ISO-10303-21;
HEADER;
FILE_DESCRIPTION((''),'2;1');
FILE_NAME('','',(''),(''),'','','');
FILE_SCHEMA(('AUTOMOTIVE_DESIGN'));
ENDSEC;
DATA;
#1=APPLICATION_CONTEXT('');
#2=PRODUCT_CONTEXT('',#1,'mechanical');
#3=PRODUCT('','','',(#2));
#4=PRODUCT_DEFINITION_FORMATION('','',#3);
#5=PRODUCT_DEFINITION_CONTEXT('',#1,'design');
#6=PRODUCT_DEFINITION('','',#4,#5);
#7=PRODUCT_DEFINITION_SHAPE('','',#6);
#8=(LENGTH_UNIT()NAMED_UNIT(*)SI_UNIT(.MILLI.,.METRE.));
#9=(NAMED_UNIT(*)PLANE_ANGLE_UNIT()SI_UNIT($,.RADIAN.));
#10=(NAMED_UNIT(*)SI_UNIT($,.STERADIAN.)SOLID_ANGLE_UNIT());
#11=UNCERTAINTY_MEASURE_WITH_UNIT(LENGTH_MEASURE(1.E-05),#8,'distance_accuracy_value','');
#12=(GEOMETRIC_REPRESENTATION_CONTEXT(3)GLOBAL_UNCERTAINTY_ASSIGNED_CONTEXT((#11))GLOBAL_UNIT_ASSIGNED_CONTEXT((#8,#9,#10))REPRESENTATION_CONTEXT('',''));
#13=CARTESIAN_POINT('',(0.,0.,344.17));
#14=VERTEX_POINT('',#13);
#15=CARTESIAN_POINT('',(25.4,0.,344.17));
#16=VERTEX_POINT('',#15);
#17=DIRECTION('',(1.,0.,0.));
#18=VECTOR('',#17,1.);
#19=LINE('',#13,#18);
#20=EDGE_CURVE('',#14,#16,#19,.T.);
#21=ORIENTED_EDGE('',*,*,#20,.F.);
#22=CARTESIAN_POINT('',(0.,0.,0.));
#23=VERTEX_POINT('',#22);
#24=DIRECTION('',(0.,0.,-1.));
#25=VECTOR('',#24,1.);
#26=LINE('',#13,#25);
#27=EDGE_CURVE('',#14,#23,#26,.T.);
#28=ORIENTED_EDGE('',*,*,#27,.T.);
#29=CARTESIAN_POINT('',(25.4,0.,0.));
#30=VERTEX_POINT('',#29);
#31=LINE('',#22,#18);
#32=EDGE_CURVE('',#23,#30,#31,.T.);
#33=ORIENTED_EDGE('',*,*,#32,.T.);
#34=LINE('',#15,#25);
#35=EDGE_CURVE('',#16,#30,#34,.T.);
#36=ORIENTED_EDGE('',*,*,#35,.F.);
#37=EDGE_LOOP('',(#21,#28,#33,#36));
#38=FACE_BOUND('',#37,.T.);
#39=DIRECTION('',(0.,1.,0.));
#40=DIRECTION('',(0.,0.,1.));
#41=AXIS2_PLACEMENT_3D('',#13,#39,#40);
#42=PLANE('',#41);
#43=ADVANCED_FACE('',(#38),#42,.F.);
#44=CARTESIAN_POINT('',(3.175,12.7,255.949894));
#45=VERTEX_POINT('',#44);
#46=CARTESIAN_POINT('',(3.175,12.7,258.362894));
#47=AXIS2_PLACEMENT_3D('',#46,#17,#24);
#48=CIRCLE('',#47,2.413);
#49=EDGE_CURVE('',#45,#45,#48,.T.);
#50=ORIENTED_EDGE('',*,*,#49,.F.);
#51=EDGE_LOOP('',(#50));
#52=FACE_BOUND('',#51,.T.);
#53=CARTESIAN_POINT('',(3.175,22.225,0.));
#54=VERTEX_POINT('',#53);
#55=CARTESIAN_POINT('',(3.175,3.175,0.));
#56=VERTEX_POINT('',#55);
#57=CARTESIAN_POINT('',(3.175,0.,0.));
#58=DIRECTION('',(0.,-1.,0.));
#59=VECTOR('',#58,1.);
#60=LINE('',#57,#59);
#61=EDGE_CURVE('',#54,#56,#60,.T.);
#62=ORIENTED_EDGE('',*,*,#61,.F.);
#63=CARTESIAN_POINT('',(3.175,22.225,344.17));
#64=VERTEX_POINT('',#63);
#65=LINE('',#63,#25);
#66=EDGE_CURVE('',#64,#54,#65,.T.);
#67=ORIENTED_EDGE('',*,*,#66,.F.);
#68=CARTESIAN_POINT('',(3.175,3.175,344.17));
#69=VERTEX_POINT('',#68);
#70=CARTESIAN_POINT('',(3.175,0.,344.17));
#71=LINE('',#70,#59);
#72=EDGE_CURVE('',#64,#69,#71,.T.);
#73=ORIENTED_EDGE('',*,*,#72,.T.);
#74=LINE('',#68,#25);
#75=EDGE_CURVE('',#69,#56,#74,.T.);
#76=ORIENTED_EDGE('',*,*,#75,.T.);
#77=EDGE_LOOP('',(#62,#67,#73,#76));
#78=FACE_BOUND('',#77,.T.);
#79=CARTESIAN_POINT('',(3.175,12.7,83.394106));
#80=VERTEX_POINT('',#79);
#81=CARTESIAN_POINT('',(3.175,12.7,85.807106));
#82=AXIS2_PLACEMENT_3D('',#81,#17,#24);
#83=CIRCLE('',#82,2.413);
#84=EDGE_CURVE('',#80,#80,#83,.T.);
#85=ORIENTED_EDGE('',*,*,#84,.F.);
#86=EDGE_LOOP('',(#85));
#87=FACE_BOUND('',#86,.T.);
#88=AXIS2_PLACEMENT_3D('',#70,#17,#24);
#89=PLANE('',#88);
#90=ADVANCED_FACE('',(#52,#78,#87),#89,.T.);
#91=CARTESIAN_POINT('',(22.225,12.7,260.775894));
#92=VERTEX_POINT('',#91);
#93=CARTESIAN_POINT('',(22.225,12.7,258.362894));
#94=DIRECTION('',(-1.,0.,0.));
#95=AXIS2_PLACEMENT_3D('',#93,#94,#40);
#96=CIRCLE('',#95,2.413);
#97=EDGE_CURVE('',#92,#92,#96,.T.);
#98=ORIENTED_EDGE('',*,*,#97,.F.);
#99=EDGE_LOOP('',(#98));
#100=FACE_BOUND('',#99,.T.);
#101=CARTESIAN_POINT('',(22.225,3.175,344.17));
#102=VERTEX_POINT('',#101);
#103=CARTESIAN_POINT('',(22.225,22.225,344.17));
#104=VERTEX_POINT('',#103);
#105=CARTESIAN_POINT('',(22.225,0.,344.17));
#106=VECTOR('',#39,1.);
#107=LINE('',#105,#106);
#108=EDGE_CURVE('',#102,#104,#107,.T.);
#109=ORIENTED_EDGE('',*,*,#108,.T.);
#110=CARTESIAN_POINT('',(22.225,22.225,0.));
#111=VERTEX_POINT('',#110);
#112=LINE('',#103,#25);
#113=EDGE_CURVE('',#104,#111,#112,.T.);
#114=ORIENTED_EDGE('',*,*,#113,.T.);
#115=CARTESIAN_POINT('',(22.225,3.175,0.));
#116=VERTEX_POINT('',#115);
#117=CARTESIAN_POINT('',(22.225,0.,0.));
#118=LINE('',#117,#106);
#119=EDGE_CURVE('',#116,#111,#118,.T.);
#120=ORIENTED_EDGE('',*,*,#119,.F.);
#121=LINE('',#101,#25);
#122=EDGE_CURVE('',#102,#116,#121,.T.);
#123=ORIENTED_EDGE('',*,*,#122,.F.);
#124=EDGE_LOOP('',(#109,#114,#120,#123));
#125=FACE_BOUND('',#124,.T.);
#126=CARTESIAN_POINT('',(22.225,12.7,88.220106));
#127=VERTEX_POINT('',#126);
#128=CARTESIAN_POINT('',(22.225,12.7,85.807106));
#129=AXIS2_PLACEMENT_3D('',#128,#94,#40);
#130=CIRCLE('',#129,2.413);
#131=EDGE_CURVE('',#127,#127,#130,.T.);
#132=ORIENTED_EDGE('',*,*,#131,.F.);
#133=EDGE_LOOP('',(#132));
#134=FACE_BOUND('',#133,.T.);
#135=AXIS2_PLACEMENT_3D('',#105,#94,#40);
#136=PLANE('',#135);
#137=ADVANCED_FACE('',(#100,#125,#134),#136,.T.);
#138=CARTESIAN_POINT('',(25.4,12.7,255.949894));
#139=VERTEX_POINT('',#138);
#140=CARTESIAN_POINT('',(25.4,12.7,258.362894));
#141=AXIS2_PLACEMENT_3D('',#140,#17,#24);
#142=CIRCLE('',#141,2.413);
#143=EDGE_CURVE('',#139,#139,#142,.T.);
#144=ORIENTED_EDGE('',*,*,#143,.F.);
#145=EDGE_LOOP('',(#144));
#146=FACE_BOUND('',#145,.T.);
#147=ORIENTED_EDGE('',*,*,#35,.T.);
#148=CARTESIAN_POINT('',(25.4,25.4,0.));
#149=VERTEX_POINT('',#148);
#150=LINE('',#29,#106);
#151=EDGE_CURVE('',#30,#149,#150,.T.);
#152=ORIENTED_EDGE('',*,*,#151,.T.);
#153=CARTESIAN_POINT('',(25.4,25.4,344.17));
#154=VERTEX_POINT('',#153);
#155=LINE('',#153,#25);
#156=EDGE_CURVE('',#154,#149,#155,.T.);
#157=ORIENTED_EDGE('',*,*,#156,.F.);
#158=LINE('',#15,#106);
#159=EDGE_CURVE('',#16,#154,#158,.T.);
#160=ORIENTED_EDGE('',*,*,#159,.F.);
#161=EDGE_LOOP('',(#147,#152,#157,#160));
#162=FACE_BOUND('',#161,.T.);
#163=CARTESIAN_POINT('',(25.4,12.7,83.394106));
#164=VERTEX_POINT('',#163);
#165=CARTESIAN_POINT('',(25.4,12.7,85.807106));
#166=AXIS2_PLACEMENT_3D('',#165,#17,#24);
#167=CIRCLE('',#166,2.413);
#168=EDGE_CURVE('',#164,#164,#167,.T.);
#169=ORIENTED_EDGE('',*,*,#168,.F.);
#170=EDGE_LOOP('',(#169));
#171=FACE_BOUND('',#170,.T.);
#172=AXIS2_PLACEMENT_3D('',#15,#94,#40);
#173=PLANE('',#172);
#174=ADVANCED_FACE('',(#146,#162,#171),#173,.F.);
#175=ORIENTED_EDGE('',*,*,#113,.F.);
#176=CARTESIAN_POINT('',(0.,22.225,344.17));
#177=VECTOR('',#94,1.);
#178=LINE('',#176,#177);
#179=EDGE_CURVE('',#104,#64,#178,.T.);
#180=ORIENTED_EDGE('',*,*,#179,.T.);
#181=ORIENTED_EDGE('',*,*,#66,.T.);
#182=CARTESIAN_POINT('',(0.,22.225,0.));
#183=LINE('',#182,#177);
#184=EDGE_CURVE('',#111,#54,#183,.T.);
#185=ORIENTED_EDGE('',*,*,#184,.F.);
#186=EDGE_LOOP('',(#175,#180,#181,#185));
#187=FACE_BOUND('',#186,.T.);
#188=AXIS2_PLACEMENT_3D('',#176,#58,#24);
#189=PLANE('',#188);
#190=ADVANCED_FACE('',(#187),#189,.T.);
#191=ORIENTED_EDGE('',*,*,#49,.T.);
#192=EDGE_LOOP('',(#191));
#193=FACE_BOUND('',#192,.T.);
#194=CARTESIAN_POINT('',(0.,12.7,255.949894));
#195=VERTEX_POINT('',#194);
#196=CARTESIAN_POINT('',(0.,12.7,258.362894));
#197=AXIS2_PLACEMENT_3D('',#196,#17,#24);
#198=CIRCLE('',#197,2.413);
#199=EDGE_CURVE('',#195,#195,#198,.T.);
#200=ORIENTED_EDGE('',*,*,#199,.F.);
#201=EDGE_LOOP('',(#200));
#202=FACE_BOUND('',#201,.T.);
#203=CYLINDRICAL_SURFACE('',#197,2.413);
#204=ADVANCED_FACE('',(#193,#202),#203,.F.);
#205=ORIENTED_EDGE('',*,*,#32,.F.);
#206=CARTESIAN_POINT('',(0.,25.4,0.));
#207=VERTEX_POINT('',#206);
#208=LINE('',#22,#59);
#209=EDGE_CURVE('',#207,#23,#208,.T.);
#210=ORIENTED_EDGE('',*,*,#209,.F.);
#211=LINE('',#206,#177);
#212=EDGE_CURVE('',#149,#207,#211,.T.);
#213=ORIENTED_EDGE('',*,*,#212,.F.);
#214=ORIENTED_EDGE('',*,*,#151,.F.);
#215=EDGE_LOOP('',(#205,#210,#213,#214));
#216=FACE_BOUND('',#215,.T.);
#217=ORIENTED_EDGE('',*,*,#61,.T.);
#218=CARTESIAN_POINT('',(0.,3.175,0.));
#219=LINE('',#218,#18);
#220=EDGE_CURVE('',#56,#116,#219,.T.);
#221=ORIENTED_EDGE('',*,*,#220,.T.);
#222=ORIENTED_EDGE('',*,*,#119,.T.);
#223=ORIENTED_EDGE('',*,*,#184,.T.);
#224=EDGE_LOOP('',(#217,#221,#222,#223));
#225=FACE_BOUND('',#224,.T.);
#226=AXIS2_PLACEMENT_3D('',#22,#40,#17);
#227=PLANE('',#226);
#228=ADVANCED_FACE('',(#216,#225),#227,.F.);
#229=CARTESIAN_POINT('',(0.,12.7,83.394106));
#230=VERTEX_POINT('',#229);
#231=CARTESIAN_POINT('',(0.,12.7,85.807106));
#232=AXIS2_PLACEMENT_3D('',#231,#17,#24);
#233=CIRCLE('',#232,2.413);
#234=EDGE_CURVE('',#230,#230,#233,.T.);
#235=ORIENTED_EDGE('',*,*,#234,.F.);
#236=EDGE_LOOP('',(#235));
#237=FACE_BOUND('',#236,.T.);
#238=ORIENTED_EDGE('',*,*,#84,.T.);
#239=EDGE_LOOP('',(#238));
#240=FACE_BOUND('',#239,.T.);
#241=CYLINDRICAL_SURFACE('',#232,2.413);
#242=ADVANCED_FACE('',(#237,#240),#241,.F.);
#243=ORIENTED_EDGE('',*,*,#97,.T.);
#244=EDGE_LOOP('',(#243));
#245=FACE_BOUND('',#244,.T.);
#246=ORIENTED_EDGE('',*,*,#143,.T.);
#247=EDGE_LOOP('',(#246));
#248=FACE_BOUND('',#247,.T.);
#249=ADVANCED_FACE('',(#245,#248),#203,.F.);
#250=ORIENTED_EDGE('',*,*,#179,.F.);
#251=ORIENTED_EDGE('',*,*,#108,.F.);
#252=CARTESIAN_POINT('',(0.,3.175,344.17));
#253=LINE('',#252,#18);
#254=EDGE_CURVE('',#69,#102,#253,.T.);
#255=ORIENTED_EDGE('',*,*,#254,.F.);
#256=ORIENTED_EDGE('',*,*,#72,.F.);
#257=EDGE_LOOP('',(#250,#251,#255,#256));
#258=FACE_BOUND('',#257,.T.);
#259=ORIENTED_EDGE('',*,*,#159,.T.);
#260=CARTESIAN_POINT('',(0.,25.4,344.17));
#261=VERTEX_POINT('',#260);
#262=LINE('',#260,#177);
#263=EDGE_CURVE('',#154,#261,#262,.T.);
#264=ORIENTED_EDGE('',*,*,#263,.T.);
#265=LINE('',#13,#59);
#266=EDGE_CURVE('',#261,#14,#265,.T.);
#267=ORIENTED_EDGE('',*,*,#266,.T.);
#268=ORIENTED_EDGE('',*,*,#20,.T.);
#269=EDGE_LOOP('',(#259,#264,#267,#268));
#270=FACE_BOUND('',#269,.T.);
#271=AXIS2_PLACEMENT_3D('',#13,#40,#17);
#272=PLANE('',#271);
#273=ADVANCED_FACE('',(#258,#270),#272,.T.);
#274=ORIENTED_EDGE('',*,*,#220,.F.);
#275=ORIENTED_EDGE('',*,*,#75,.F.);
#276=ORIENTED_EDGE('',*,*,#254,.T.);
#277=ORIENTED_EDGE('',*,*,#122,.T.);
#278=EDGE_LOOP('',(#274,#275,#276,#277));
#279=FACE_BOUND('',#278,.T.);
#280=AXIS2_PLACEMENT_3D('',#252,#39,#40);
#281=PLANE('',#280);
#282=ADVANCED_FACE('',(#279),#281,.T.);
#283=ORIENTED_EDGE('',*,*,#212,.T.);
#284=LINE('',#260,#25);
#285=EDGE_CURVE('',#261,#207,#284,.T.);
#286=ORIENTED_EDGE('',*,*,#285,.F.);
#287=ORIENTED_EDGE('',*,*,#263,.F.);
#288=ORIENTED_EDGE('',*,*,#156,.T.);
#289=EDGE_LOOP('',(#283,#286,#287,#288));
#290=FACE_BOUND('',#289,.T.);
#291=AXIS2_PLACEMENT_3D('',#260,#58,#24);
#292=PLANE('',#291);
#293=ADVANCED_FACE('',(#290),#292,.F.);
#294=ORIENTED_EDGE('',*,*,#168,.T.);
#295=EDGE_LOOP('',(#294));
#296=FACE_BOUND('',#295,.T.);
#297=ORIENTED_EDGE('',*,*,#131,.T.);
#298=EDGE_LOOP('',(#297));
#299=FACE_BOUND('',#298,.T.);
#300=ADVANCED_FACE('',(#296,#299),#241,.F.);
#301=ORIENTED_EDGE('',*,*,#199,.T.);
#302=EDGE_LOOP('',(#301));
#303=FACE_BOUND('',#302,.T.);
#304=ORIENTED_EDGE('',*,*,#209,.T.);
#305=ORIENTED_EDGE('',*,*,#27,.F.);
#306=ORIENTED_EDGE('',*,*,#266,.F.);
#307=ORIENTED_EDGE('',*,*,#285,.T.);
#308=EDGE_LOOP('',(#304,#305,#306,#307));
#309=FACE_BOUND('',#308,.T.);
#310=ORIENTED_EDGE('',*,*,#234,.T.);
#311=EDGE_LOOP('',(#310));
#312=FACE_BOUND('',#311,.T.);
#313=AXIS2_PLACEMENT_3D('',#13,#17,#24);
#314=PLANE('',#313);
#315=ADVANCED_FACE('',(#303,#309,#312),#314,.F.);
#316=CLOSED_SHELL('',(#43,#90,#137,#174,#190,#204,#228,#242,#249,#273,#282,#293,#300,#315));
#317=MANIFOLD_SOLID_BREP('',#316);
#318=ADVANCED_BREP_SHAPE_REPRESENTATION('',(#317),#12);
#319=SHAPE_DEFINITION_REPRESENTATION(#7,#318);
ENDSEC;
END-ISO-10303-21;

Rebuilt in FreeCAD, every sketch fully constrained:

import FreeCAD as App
import Part
import Sketcher
Q = App.Units.Quantity

doc = App.newDocument("Part")
body = doc.addObject("PartDesign::Body", "Body")

# Sketch on XY plane
sketch1 = body.newObject("Sketcher::SketchObject", "Sketch")
sketch1.AttachmentSupport = (doc.getObject("XY_Plane"), [""])
sketch1.MapMode = "FlatFace"
sketch1.addGeometry([
    Part.LineSegment(App.Vector(0, 25, 0), App.Vector(0, 0, 0)),  # 0
    Part.LineSegment(App.Vector(0, 0, 0), App.Vector(25, 0, 0)),  # 1
    Part.LineSegment(App.Vector(25, 0, 0), App.Vector(25, 25, 0)),  # 2
    Part.LineSegment(App.Vector(25, 25, 0), App.Vector(0, 25, 0)),  # 3
    Part.LineSegment(App.Vector(22, 3, 0), App.Vector(3, 3, 0)),  # 4
    Part.LineSegment(App.Vector(3, 3, 0), App.Vector(3, 22, 0)),  # 5
    Part.LineSegment(App.Vector(3, 22, 0), App.Vector(22, 22, 0)),  # 6
    Part.LineSegment(App.Vector(22, 22, 0), App.Vector(22, 3, 0)),  # 7
], False)
sketch1.addConstraint([
    Sketcher.Constraint("Coincident", 0, 2, 1, 1),
    Sketcher.Constraint("Coincident", 1, 2, 2, 1),
    Sketcher.Constraint("Coincident", 2, 2, 3, 1),
    Sketcher.Constraint("Coincident", 3, 2, 0, 1),
    Sketcher.Constraint("Coincident", 4, 2, 5, 1),
    Sketcher.Constraint("Coincident", 5, 2, 6, 1),
    Sketcher.Constraint("Coincident", 6, 2, 7, 1),
    Sketcher.Constraint("Coincident", 7, 2, 4, 1),
    Sketcher.Constraint("Vertical", 0),
    Sketcher.Constraint("Horizontal", 1),
    Sketcher.Constraint("Vertical", 2),
    Sketcher.Constraint("Horizontal", 3),
    Sketcher.Constraint("Horizontal", 4),
    Sketcher.Constraint("Vertical", 5),
    Sketcher.Constraint("Horizontal", 6),
    Sketcher.Constraint("Vertical", 7),
    Sketcher.Constraint("Coincident", 0, 2, -1, 1),
    Sketcher.Constraint("Equal", 3, 0),
    Sketcher.Constraint("Equal", 6, 5),
    Sketcher.Constraint("DistanceX", 1, 1, 1, 2, Q("1 in")),
    Sketcher.Constraint("DistanceX", 4, 2, 4, 1, Q("0.75 in")),
    Sketcher.Constraint("DistanceX", -1, 1, 4, 2, Q("0.125 in")),
    Sketcher.Constraint("DistanceY", -1, 1, 4, 2, Q("0.125 in")),
])
pad1 = body.newObject("PartDesign::Pad", "Pad")
pad1.Profile = sketch1
pad1.Length = Q("13.55 in")

# Sketch on YZ plane
sketch2 = body.newObject("Sketcher::SketchObject", "Sketch001")
sketch2.AttachmentSupport = (doc.getObject("YZ_Plane"), [""])
sketch2.MapMode = "FlatFace"
sketch2.AttachmentOffset = App.Placement(App.Vector(0, 0, 1 * 25.4), App.Rotation())
sketch2.addGeometry([
    Part.Circle(App.Vector(12.7, 85.8, 0), App.Vector(0, 0, 1), 2.4),
    Part.Circle(App.Vector(12.7, 258.4, 0), App.Vector(0, 0, 1), 2.4),
], False)
sketch2.addConstraint([
    Sketcher.Constraint("Equal", 0, 1),
    Sketcher.Constraint("Vertical", 0, 3, 1, 3),
    Sketcher.Constraint("Diameter", 0, Q("0.19 in")),
    Sketcher.Constraint("DistanceX", -1, 1, 0, 3, Q("0.5 in")),
    Sketcher.Constraint("DistanceY", 0, 3, 1, 3, 172.555789),
    Sketcher.Constraint("DistanceY", -1, 1, 0, 3, 85.807106),
])
pocket1 = body.newObject("PartDesign::Pocket", "Pocket")
pocket1.Profile = sketch2
pocket1.Type = "ThroughAll"

doc.recompute()
